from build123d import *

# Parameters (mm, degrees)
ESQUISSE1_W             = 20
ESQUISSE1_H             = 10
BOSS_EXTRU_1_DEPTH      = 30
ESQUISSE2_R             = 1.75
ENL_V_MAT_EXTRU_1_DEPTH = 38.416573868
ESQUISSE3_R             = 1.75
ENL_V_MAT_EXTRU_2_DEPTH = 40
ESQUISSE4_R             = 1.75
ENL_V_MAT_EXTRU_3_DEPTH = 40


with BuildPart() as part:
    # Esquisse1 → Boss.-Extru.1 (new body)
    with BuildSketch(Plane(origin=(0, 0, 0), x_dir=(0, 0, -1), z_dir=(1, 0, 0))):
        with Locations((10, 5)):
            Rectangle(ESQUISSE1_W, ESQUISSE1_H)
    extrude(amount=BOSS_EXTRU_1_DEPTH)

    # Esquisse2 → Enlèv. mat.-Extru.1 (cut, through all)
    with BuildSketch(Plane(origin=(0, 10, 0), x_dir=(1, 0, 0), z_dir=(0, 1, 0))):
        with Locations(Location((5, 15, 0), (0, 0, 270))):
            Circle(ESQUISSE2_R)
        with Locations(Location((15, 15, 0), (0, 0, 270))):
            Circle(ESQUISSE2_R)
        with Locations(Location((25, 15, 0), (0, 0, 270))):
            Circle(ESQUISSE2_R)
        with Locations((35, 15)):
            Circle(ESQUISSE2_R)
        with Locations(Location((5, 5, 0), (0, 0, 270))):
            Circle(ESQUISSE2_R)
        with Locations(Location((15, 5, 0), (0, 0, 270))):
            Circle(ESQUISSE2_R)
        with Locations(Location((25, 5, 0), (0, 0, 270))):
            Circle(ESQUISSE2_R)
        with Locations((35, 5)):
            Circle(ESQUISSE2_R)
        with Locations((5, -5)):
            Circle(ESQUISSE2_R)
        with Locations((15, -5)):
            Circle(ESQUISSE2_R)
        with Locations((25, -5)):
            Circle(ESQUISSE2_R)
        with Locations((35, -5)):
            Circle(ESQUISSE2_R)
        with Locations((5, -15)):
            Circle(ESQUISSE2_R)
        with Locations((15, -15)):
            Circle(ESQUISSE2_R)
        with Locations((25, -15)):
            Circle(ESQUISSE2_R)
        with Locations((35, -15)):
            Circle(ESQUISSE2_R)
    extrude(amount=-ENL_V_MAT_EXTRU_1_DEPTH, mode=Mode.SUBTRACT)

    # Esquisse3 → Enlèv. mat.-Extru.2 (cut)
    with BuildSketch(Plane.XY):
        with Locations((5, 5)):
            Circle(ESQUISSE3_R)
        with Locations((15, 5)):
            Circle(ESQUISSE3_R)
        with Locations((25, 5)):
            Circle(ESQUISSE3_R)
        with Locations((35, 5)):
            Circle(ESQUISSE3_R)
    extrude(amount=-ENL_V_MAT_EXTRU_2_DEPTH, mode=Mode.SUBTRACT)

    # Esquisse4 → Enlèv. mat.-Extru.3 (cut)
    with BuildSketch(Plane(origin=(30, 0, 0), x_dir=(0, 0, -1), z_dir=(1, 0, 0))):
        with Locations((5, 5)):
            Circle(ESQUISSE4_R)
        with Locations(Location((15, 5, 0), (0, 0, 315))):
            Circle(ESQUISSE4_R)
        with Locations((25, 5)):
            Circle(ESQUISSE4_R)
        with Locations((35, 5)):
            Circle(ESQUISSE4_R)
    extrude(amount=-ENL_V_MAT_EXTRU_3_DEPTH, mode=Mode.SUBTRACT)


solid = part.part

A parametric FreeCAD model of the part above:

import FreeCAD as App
import Part
import Sketcher
Q = App.Units.Quantity


def add_polygon(sketch, points):
    """Adds a closed chain of lines whose ends are joined by coincident constraints."""
    first, n = sketch.GeometryCount, len(points)
    for a, b in zip(points, points[1:] + points[:1]):
        sketch.addGeometry(Part.LineSegment(App.Vector(*a, 0), App.Vector(*b, 0)), False)
    for i in range(n):
        sketch.addConstraint(Sketcher.Constraint("Coincident", first + i, 2, first + (i + 1) % n, 1))

doc = App.newDocument("Part")
params = doc.addObject("Spreadsheet::Sheet", "Params")
for row, (alias, value) in enumerate([
    ("sketch1_width", "10 mm"),
    ("sketch1_height", "20 mm"),
    ("pad1_length", "30 mm"),
    ("sketch2_diameter", "3.5 mm"),
    ("sketch3_diameter", "3.5 mm"),
    ("pocket2_length", "40 mm"),
    ("sketch4_diameter", "3.5 mm"),
    ("pocket3_length", "40 mm"),
], start=1):
    params.set(f"A{row}", alias)
    params.set(f"B{row}", "=" + value)
    params.setAlias(f"B{row}", alias)

body = doc.addObject("PartDesign::Body", "Body")

# Sketch on YZ plane
sketch1 = doc.addObject("Sketcher::SketchObject", "Sketch")
body.addObject(sketch1)
sketch1.AttachmentSupport = (doc.YZ_Plane, [""])
sketch1.MapMode = "FlatFace"
add_polygon(sketch1, [(10, 0), (0, 0), (0, -20), (10, -20)])  # lines 0-3
sketch1.addConstraint([
    Sketcher.Constraint("Horizontal", 0),
    Sketcher.Constraint("Vertical", 1),
    Sketcher.Constraint("Horizontal", 2),
    Sketcher.Constraint("Vertical", 3),
    Sketcher.Constraint("Coincident", 0, 2, -1, 1),
    Sketcher.Constraint("DistanceX", 0, 2, 0, 1, Q("10 mm")),
    Sketcher.Constraint("DistanceY", 1, 2, 1, 1, Q("20 mm")),
])
sketch1.setExpression("Constraints[9]", "Params.sketch1_width")
sketch1.setExpression("Constraints[10]", "Params.sketch1_height")
pad1 = doc.addObject("PartDesign::Pad", "Pad")
body.addObject(pad1)
pad1.Profile = sketch1
pad1.setExpression("Length", "Params.pad1_length")

# Sketch on XZ plane
sketch2 = doc.addObject("Sketcher::SketchObject", "Sketch001")
body.addObject(sketch2)
sketch2.AttachmentSupport = (doc.XZ_Plane, [""])
sketch2.MapMode = "FlatFace"
sketch2.AttachmentOffset = App.Placement(App.Vector(0, 0, -10), App.Rotation())
sketch2.addGeometry([
    Part.Circle(App.Vector(5, -15, 0), App.Vector(0, 0, 1), 1.8),  # 0
    Part.Circle(App.Vector(15, -15, 0), App.Vector(0, 0, 1), 1.8),  # 1
    Part.Circle(App.Vector(25, -15, 0), App.Vector(0, 0, 1), 1.8),  # 2
    Part.Circle(App.Vector(35, -15, 0), App.Vector(0, 0, 1), 1.8),  # 3
    Part.Circle(App.Vector(5, -5, 0), App.Vector(0, 0, 1), 1.8),  # 4
    Part.Circle(App.Vector(15, -5, 0), App.Vector(0, 0, 1), 1.8),  # 5
    Part.Circle(App.Vector(25, -5, 0), App.Vector(0, 0, 1), 1.8),  # 6
    Part.Circle(App.Vector(35, -5, 0), App.Vector(0, 0, 1), 1.8),  # 7
    Part.Circle(App.Vector(5, 5, 0), App.Vector(0, 0, 1), 1.8),  # 8
    Part.Circle(App.Vector(15, 5, 0), App.Vector(0, 0, 1), 1.8),  # 9
    Part.Circle(App.Vector(25, 5, 0), App.Vector(0, 0, 1), 1.8),  # 10
    Part.Circle(App.Vector(35, 5, 0), App.Vector(0, 0, 1), 1.8),  # 11
    Part.Circle(App.Vector(5, 15, 0), App.Vector(0, 0, 1), 1.8),  # 12
    Part.Circle(App.Vector(15, 15, 0), App.Vector(0, 0, 1), 1.8),  # 13
    Part.Circle(App.Vector(25, 15, 0), App.Vector(0, 0, 1), 1.8),  # 14
    Part.Circle(App.Vector(35, 15, 0), App.Vector(0, 0, 1), 1.8),  # 15
], False)
sketch2.addConstraint([
    Sketcher.Constraint("Equal", 0, 1),
    Sketcher.Constraint("Equal", 1, 2),
    Sketcher.Constraint("Equal", 2, 3),
    Sketcher.Constraint("Equal", 3, 4),
    Sketcher.Constraint("Equal", 4, 5),
    Sketcher.Constraint("Equal", 5, 6),
    Sketcher.Constraint("Equal", 6, 7),
    Sketcher.Constraint("Equal", 7, 8),
    Sketcher.Constraint("Equal", 8, 9),
    Sketcher.Constraint("Equal", 9, 10),
    Sketcher.Constraint("Equal", 10, 11),
    Sketcher.Constraint("Equal", 11, 12),
    Sketcher.Constraint("Equal", 12, 13),
    Sketcher.Constraint("Equal", 13, 14),
    Sketcher.Constraint("Equal", 14, 15),
    Sketcher.Constraint("Symmetric", 4, 3, 8, 3, -1),
    Sketcher.Constraint("Symmetric", 5, 3, 9, 3, -1),
    Sketcher.Constraint("Symmetric", 6, 3, 10, 3, -1),
    Sketcher.Constraint("Symmetric", 7, 3, 11, 3, -1),
    Sketcher.Constraint("Symmetric", 0, 3, 12, 3, -1),
    Sketcher.Constraint("Symmetric", 1, 3, 13, 3, -1),
    Sketcher.Constraint("Symmetric", 2, 3, 14, 3, -1),
    Sketcher.Constraint("Symmetric", 3, 3, 15, 3, -1),
    Sketcher.Constraint("Horizontal", 0, 3, 1, 3),
    Sketcher.Constraint("Horizontal", 1, 3, 2, 3),
    Sketcher.Constraint("Horizontal", 2, 3, 3, 3),
    Sketcher.Constraint("Horizontal", 4, 3, 5, 3),
    Sketcher.Constraint("Horizontal", 5, 3, 6, 3),
    Sketcher.Constraint("Horizontal", 6, 3, 7, 3),
    Sketcher.Constraint("Vertical", 0, 3, 4, 3),
    Sketcher.Constraint("Vertical", 1, 3, 5, 3),
    Sketcher.Constraint("Vertical", 2, 3, 6, 3),
    Sketcher.Constraint("Vertical", 3, 3, 7, 3),
    Sketcher.Constraint("Diameter", 0, Q("3.5 mm")),
    Sketcher.Constraint("DistanceX", -1, 1, 0, 3, Q("5 mm")),
    Sketcher.Constraint("DistanceY", 0, 3, -1, 1, Q("15 mm")),
    Sketcher.Constraint("DistanceX", -1, 1, 1, 3, Q("15 mm")),
    Sketcher.Constraint("DistanceX", -1, 1, 2, 3, Q("25 mm")),
    Sketcher.Constraint("DistanceX", -1, 1, 3, 3, Q("35 mm")),
    Sketcher.Constraint("DistanceY", 4, 3, -1, 1, Q("5 mm")),
])
sketch2.setExpression("Constraints[33]", "Params.sketch2_diameter")
pocket1 = doc.addObject("PartDesign::Pocket", "Pocket")
body.addObject(pocket1)
pocket1.Profile = sketch2
pocket1.Type = "ThroughAll"
pocket1.Reversed = True

# Sketch on XY plane
sketch3 = doc.addObject("Sketcher::SketchObject", "Sketch002")
body.addObject(sketch3)
sketch3.AttachmentSupport = (doc.XY_Plane, [""])
sketch3.MapMode = "FlatFace"
sketch3.addGeometry([
    Part.Circle(App.Vector(5, 5, 0), App.Vector(0, 0, 1), 1.8),
    Part.Circle(App.Vector(15, 5, 0), App.Vector(0, 0, 1), 1.8),
    Part.Circle(App.Vector(25, 5, 0), App.Vector(0, 0, 1), 1.8),
    Part.Circle(App.Vector(35, 5, 0), App.Vector(0, 0, 1), 1.8),
], False)
sketch3.addConstraint([
    Sketcher.Constraint("Equal", 0, 1),
    Sketcher.Constraint("Equal", 1, 2),
    Sketcher.Constraint("Equal", 2, 3),
    Sketcher.Constraint("Horizontal", 0, 3, 1, 3),
    Sketcher.Constraint("Horizontal", 1, 3, 2, 3),
    Sketcher.Constraint("Horizontal", 2, 3, 3, 3),
    Sketcher.Constraint("Diameter", 0, Q("3.5 mm")),
    Sketcher.Constraint("DistanceX", -1, 1, 0, 3, Q("5 mm")),
    Sketcher.Constraint("DistanceY", -1, 1, 0, 3, Q("5 mm")),
    Sketcher.Constraint("DistanceX", -1, 1, 1, 3, Q("15 mm")),
    Sketcher.Constraint("DistanceX", -1, 1, 2, 3, Q("25 mm")),
    Sketcher.Constraint("DistanceX", -1, 1, 3, 3, Q("35 mm")),
])
sketch3.setExpression("Constraints[6]", "Params.sketch3_diameter")
pocket2 = doc.addObject("PartDesign::Pocket", "Pocket001")
body.addObject(pocket2)
pocket2.Profile = sketch3
pocket2.setExpression("Length", "Params.pocket2_length")

# Sketch on YZ plane
sketch4 = doc.addObject("Sketcher::SketchObject", "Sketch003")
body.addObject(sketch4)
sketch4.AttachmentSupport = (doc.YZ_Plane, [""])
sketch4.MapMode = "FlatFace"
sketch4.AttachmentOffset = App.Placement(App.Vector(0, 0, 30), App.Rotation())
sketch4.addGeometry([
    Part.Circle(App.Vector(5, -5, 0), App.Vector(0, 0, 1), 1.8),
    Part.Circle(App.Vector(5, -15, 0), App.Vector(0, 0, 1), 1.8),
    Part.Circle(App.Vector(5, -25, 0), App.Vector(0, 0, 1), 1.8),
    Part.Circle(App.Vector(5, -35, 0), App.Vector(0, 0, 1), 1.8),
], False)
sketch4.addConstraint([
    Sketcher.Constraint("Equal", 0, 1),
    Sketcher.Constraint("Equal", 1, 2),
    Sketcher.Constraint("Equal", 2, 3),
    Sketcher.Constraint("Vertical", 0, 3, 1, 3),
    Sketcher.Constraint("Vertical", 1, 3, 2, 3),
    Sketcher.Constraint("Vertical", 2, 3, 3, 3),
    Sketcher.Constraint("Diameter", 0, Q("3.5 mm")),
    Sketcher.Constraint("DistanceX", -1, 1, 0, 3, Q("5 mm")),
    Sketcher.Constraint("DistanceY", 0, 3, -1, 1, Q("5 mm")),
    Sketcher.Constraint("DistanceY", 1, 3, -1, 1, Q("15 mm")),
    Sketcher.Constraint("DistanceY", 2, 3, -1, 1, Q("25 mm")),
    Sketcher.Constraint("DistanceY", 3, 3, -1, 1, Q("35 mm")),
])
sketch4.setExpression("Constraints[6]", "Params.sketch4_diameter")
pocket3 = doc.addObject("PartDesign::Pocket", "Pocket002")
body.addObject(pocket3)
pocket3.Profile = sketch4
pocket3.setExpression("Length", "Params.pocket3_length")

doc.recompute()
